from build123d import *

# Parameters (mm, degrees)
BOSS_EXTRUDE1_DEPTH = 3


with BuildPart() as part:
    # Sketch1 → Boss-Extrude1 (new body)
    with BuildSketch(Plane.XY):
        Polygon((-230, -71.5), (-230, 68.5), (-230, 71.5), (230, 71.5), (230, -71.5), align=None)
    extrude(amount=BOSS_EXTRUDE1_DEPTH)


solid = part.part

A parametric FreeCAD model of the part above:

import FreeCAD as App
import Part
import Sketcher

V = App.Vector


def add_polygon(sketch, points):
    """Adds a closed chain of lines whose ends are joined by coincident constraints."""
    first, n = sketch.GeometryCount, len(points)
    for a, b in zip(points, points[1:] + points[:1]):
        sketch.addGeometry(Part.LineSegment(App.Vector(*a, 0), App.Vector(*b, 0)), False)
    for i in range(n):
        sketch.addConstraint(Sketcher.Constraint("Coincident", first + i, 2, first + (i + 1) % n, 1))

doc = App.newDocument("Part")
body = doc.addObject("PartDesign::Body", "Body")

sketch1 = body.newObject("Sketcher::SketchObject", "Sketch")
sketch1.AttachmentSupport = (doc.getObject("XY_Plane"), [""])
sketch1.MapMode = "FlatFace"
add_polygon(sketch1, [(-230, 72), (-230, -72), (230, -72), (230, 72)])
sketch1.addConstraint(Sketcher.Constraint("Vertical", 0))
sketch1.addConstraint(Sketcher.Constraint("Horizontal", 1))
sketch1.addConstraint(Sketcher.Constraint("Vertical", 2))
sketch1.addConstraint(Sketcher.Constraint("Horizontal", 3))
sketch1.addConstraint(Sketcher.Constraint("Symmetric", 0, 2, 2, 2, -1, 1))
sketch1.addConstraint(Sketcher.Constraint("DistanceX", 1, 1, 1, 2, 460.0))
sketch1.addConstraint(Sketcher.Constraint("DistanceY", 0, 2, 0, 1, 143.0))
pad1 = body.newObject("PartDesign::Pad", "Pad")
pad1.Profile = sketch1
pad1.Length = 3

doc.recompute()
